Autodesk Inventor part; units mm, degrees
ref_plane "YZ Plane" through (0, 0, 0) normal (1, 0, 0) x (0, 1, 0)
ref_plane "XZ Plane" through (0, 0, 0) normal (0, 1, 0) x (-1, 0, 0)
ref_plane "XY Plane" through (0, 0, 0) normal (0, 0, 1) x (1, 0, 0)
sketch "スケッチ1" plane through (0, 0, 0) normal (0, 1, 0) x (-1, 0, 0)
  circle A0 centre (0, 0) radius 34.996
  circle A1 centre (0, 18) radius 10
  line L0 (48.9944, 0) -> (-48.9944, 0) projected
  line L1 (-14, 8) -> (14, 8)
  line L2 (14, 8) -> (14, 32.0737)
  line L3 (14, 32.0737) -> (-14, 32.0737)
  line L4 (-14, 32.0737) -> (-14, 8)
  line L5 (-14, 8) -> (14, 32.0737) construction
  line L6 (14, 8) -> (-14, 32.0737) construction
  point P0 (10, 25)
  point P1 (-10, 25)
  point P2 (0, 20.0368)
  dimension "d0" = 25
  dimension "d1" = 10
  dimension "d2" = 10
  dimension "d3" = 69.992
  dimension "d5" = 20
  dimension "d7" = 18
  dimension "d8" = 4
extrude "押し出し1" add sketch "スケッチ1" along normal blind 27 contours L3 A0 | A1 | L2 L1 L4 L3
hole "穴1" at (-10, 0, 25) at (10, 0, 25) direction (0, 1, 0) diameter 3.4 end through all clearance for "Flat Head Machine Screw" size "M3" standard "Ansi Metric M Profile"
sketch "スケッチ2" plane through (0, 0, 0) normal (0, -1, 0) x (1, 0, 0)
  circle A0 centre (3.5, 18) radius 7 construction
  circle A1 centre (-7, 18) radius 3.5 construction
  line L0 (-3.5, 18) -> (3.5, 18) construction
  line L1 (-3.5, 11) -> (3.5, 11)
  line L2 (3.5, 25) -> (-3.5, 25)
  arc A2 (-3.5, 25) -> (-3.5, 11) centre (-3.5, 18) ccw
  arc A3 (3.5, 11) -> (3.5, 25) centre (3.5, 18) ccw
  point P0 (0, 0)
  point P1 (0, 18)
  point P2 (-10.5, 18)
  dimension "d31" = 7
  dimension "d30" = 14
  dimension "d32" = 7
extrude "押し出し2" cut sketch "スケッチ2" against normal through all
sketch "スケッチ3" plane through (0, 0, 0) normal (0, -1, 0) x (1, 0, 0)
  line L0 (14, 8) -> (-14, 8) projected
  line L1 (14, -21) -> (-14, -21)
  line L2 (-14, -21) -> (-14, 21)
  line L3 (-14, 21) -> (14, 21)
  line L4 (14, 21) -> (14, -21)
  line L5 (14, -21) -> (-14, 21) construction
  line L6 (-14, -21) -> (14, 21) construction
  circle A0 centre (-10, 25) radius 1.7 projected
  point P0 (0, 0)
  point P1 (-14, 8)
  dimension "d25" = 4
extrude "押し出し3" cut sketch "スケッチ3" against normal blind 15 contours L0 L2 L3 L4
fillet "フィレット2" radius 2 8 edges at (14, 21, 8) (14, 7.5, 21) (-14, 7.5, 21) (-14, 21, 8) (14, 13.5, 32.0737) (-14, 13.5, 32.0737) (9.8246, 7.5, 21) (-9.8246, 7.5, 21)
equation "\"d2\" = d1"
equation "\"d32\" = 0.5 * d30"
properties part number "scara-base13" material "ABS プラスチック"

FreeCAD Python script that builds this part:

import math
import FreeCAD as App
import Part
import Sketcher


def edges_at(feature, points):
    """Names of the edges that pass closest to the given points."""
    edges = feature.Shape.Edges
    near = lambda p: min(range(len(edges)), key=lambda i: edges[i].distToShape(Part.Vertex(*p))[0])
    return sorted({f"Edge{near(p) + 1}" for p in points})

doc = App.newDocument("Part")
body = doc.addObject("PartDesign::Body", "Body")

sketch1 = body.newObject("Sketcher::SketchObject", "Sketch")
sketch1.AttachmentSupport = (doc.getObject("XZ_Plane"), [""])
sketch1.MapMode = "FlatFace"
sketch1.addGeometry([
    Part.ArcOfCircle(Part.Circle(App.Vector(0, 0, 0), App.Vector(0, 0, 1), 34.996), math.radians(66.418986), math.radians(113.581014)),
    Part.LineSegment(App.Vector(14, 32.0737, 0), App.Vector(14, 8, 0)),
    Part.LineSegment(App.Vector(14, 8, 0), App.Vector(-14, 8, 0)),
    Part.LineSegment(App.Vector(-14, 8, 0), App.Vector(-14, 32.0737, 0)),
], False)
sketch1.addConstraint([
    Sketcher.Constraint("Coincident", 0, 1, 1, 1),
    Sketcher.Constraint("Coincident", 1, 2, 2, 1),
    Sketcher.Constraint("Coincident", 2, 2, 3, 1),
    Sketcher.Constraint("Coincident", 3, 2, 0, 2),
    Sketcher.Constraint("Vertical", 1),
    Sketcher.Constraint("Horizontal", 2),
    Sketcher.Constraint("Vertical", 3),
    Sketcher.Constraint("Coincident", 0, 3, -1, 1),
    Sketcher.Constraint("Horizontal", 0, 1, 3, 2),
    Sketcher.Constraint("Radius", 0, 34.996),
    Sketcher.Constraint("DistanceX", 2, 2, 2, 1, 28.0),
    Sketcher.Constraint("DistanceY", -1, 1, 1, 2, 8.0),
])
pad1 = body.newObject("PartDesign::Pad", "Pad")
pad1.Profile = sketch1
pad1.Length = 27
pad1.Reversed = True

sketch2 = body.newObject("Sketcher::SketchObject", "Sketch001")
sketch2.AttachmentSupport = (doc.getObject("XZ_Plane"), [""])
sketch2.MapMode = "FlatFace"
sketch2.addGeometry([
    Part.Circle(App.Vector(-10, 25, 0), App.Vector(0, 0, 1), 1.7),
    Part.Circle(App.Vector(10, 25, 0), App.Vector(0, 0, 1), 1.7),
], False)
sketch2.addConstraint([
    Sketcher.Constraint("Equal", 0, 1),
    Sketcher.Constraint("Symmetric", 0, 3, 1, 3, -2),
    Sketcher.Constraint("Diameter", 0, 3.4),
    Sketcher.Constraint("DistanceX", 0, 3, -1, 1, 10.0),
    Sketcher.Constraint("DistanceY", -1, 1, 0, 3, 25.0),
])
doc.recompute()
hole = body.newObject("PartDesign::Hole", "Hole")
hole.Profile = sketch2
hole.ThreadType = "None"
hole.Diameter = 3.4
hole.DepthType = "ThroughAll"

sketch3 = body.newObject("Sketcher::SketchObject", "Sketch002")
sketch3.AttachmentSupport = (doc.getObject("XZ_Plane"), [""])
sketch3.MapMode = "FlatFace"
sketch3.addGeometry([
    Part.ArcOfCircle(Part.Circle(App.Vector(-3.5, 18, 0), App.Vector(0, 0, 1), 7), math.radians(90), math.radians(270)),
    Part.LineSegment(App.Vector(-3.5, 11, 0), App.Vector(3.5, 11, 0)),
    Part.ArcOfCircle(Part.Circle(App.Vector(3.5, 18, 0), App.Vector(0, 0, 1), 7), math.radians(-90), math.radians(90)),
    Part.LineSegment(App.Vector(3.5, 25, 0), App.Vector(-3.5, 25, 0)),
], False)
sketch3.addConstraint([
    Sketcher.Constraint("Tangent", 0, 2, 1, 1),
    Sketcher.Constraint("Tangent", 1, 2, 2, 1),
    Sketcher.Constraint("Tangent", 2, 2, 3, 1),
    Sketcher.Constraint("Tangent", 3, 2, 0, 1),
    Sketcher.Constraint("Horizontal", 1),
    Sketcher.Constraint("Horizontal", 3),
    Sketcher.Constraint("Radius", 0, 7.0),
    Sketcher.Constraint("DistanceX", 1, 1, 1, 2, 7.0),
    Sketcher.Constraint("DistanceY", -1, 1, 0, 3, 18.0),
    Sketcher.Constraint("DistanceX", 0, 3, -1, 1, 3.5),
])
pocket1 = body.newObject("PartDesign::Pocket", "Pocket")
pocket1.Profile = sketch3
pocket1.Type = "ThroughAll"

sketch4 = body.newObject("Sketcher::SketchObject", "Sketch003")
sketch4.AttachmentSupport = (doc.getObject("XZ_Plane"), [""])
sketch4.MapMode = "FlatFace"
sketch4.addGeometry([
    Part.LineSegment(App.Vector(-14, 8, 0), App.Vector(14, 8, 0)),
    Part.LineSegment(App.Vector(14, 8, 0), App.Vector(14, 21, 0)),
    Part.LineSegment(App.Vector(14, 21, 0), App.Vector(-14, 21, 0)),
    Part.LineSegment(App.Vector(-14, 21, 0), App.Vector(-14, 8, 0)),
], False)
sketch4.addConstraint([
    Sketcher.Constraint("Coincident", 0, 2, 1, 1),
    Sketcher.Constraint("Coincident", 1, 2, 2, 1),
    Sketcher.Constraint("Coincident", 2, 2, 3, 1),
    Sketcher.Constraint("Coincident", 3, 2, 0, 1),
    Sketcher.Constraint("Horizontal", 0),
    Sketcher.Constraint("Vertical", 1),
    Sketcher.Constraint("Horizontal", 2),
    Sketcher.Constraint("Vertical", 3),
    Sketcher.Constraint("DistanceX", 0, 1, 0, 2, 28.0),
    Sketcher.Constraint("DistanceY", 1, 1, 1, 2, 13.0),
    Sketcher.Constraint("DistanceX", -1, 1, 0, 2, 14.0),
    Sketcher.Constraint("DistanceY", -1, 1, 0, 2, 8.0),
])
pocket2 = body.newObject("PartDesign::Pocket", "Pocket001")
pocket2.Profile = sketch4
pocket2.Length = 15
doc.recompute()

fillet = body.newObject("PartDesign::Fillet", "Fillet")
fillet.Base = (pocket2, edges_at(pocket2, [
    (14, 21, 8),
    (14, 7.5, 21),
    (-14, 7.5, 21),
    (-14, 21, 8),
    (14, 13.5, 32.074),
    (-14, 13.5, 32.074),
    (9.825, 7.5, 21),
    (-9.825, 7.5, 21),
]))
fillet.Radius = 2

doc.recompute()
